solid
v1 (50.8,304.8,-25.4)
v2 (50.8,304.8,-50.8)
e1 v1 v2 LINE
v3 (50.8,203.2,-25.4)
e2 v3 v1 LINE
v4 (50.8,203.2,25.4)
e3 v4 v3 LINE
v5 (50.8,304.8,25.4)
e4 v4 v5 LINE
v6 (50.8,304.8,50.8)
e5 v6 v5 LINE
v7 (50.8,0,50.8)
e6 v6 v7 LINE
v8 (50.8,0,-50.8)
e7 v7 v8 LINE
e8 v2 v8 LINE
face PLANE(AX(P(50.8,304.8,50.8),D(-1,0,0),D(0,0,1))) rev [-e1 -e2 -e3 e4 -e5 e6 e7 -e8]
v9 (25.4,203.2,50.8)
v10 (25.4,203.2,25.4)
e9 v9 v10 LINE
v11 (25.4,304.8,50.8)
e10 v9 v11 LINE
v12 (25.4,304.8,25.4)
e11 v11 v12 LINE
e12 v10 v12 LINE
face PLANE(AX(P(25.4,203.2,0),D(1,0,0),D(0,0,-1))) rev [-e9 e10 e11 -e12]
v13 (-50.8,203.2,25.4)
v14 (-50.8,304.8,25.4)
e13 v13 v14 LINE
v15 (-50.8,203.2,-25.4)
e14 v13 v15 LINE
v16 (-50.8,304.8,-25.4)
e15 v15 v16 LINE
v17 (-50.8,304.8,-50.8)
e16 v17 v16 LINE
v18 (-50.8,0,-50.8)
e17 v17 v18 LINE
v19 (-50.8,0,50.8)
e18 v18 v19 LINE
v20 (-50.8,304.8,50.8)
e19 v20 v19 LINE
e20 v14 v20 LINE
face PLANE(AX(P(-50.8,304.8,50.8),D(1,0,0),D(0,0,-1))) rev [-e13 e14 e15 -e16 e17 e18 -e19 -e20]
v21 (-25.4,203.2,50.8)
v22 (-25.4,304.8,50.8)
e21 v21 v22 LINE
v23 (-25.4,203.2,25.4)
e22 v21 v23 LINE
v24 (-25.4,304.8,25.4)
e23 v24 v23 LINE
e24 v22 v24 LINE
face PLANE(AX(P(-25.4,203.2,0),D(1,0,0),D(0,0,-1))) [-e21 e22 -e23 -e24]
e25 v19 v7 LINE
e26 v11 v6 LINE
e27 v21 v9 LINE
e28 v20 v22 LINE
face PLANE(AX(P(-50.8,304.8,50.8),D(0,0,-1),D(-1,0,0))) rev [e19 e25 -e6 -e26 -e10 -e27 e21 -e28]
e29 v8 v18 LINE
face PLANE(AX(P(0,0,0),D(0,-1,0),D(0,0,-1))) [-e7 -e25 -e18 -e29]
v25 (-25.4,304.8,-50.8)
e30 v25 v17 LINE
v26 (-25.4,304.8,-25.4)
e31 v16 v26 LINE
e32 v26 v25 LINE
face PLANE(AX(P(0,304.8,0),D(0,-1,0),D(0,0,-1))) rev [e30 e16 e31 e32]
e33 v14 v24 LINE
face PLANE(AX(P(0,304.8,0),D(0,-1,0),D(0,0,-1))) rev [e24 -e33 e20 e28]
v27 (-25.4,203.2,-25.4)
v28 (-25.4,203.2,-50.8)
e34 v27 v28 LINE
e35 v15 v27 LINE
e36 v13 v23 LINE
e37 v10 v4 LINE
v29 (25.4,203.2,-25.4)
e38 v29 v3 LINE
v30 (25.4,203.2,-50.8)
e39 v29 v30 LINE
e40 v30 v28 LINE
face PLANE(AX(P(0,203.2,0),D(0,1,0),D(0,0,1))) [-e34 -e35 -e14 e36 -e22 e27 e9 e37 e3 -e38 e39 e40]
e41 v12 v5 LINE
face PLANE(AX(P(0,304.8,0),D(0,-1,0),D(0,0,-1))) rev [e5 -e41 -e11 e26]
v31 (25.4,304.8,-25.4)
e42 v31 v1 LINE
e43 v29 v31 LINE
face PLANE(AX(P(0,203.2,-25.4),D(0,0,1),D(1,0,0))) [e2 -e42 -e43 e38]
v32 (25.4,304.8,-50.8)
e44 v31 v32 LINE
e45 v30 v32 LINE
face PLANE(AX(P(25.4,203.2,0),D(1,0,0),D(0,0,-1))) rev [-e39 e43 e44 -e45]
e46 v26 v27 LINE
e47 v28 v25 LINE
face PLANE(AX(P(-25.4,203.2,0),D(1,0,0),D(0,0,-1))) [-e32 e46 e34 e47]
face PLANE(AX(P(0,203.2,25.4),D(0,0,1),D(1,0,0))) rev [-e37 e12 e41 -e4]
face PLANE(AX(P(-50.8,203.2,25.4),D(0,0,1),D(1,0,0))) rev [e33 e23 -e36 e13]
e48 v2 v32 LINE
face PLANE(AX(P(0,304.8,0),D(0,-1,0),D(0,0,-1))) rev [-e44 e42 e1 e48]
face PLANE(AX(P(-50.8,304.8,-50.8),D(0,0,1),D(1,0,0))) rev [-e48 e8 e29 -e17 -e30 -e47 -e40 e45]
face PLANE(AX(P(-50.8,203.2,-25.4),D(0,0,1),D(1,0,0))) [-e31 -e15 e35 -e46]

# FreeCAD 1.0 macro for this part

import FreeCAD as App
import Part
import Sketcher

V = App.Vector
Q = App.Units.Quantity


def add_polygon(sketch, points):
    """Adds a closed chain of lines whose ends are joined by coincident constraints."""
    first, n = sketch.GeometryCount, len(points)
    for a, b in zip(points, points[1:] + points[:1]):
        sketch.addGeometry(Part.LineSegment(App.Vector(*a, 0), App.Vector(*b, 0)), False)
    for i in range(n):
        sketch.addConstraint(Sketcher.Constraint("Coincident", first + i, 2, first + (i + 1) % n, 1))

doc = App.newDocument("Part")
body = doc.addObject("PartDesign::Body", "Body")

# Sketch on XZ plane
sketch1 = doc.addObject("Sketcher::SketchObject", "Sketch")
body.addObject(sketch1)
sketch1.AttachmentSupport = (doc.XZ_Plane, [""])
sketch1.MapMode = "FlatFace"
add_polygon(sketch1, [(-51, -51), (-51, 51), (51, 51), (51, -51)])  # lines 0-3
sketch1.addConstraint([
    Sketcher.Constraint("Vertical", 0),
    Sketcher.Constraint("Horizontal", 1),
    Sketcher.Constraint("Vertical", 2),
    Sketcher.Constraint("Horizontal", 3),
    Sketcher.Constraint("Symmetric", 0, 2, 2, 2, -1, 1),
    Sketcher.Constraint("Equal", 3, 0),
    Sketcher.Constraint("DistanceX", 1, 1, 1, 2, Q("4 in")),
])
pad1 = doc.addObject("PartDesign::Pad", "Pad")
body.addObject(pad1)
pad1.Profile = sketch1
pad1.Length = Q("12 in")
pad1.Reversed = True

# Sketch on XZ plane
sketch2 = doc.addObject("Sketcher::SketchObject", "Sketch001")
body.addObject(sketch2)
sketch2.AttachmentSupport = (doc.XZ_Plane, [""])
sketch2.MapMode = "FlatFace"
sketch2.AttachmentOffset = App.Placement(V(0, 0, -12 * 25.4), App.Rotation())
add_polygon(sketch2, [(-25, 25), (-25, 51), (25, 51), (25, 25), (51, 25), (51, -25), (25, -25), (25, -51), (-25, -51), (-25, -25), (-51, -25), (-51, 25)])  # lines 0-11
sketch2.addConstraint([
    Sketcher.Constraint("Vertical", 0),
    Sketcher.Constraint("Horizontal", 1),
    Sketcher.Constraint("Vertical", 2),
    Sketcher.Constraint("Horizontal", 3),
    Sketcher.Constraint("Vertical", 4),
    Sketcher.Constraint("Horizontal", 5),
    Sketcher.Constraint("Vertical", 6),
    Sketcher.Constraint("Horizontal", 7),
    Sketcher.Constraint("Vertical", 8),
    Sketcher.Constraint("Horizontal", 9),
    Sketcher.Constraint("Vertical", 10),
    Sketcher.Constraint("Horizontal", 11),
    Sketcher.Constraint("Symmetric", 0, 2, 6, 2, -1, 1),
    Sketcher.Constraint("Symmetric", 2, 2, 8, 2, -1, 1),
    Sketcher.Constraint("Symmetric", 4, 2, 10, 2, -1, 1),
    Sketcher.Constraint("Symmetric", 5, 2, 8, 2, -2),
    Sketcher.Constraint("Equal", 11, 0),
    Sketcher.Constraint("Equal", 7, 4),
    Sketcher.Constraint("DistanceX", 1, 1, 1, 2, Q("2 in")),
    Sketcher.Constraint("DistanceX", 3, 1, 3, 2, Q("1 in")),
])
pocket1 = doc.addObject("PartDesign::Pocket", "Pocket")
body.addObject(pocket1)
pocket1.Profile = sketch2
pocket1.Length = Q("4 in")
pocket1.Reversed = True

doc.recompute()
